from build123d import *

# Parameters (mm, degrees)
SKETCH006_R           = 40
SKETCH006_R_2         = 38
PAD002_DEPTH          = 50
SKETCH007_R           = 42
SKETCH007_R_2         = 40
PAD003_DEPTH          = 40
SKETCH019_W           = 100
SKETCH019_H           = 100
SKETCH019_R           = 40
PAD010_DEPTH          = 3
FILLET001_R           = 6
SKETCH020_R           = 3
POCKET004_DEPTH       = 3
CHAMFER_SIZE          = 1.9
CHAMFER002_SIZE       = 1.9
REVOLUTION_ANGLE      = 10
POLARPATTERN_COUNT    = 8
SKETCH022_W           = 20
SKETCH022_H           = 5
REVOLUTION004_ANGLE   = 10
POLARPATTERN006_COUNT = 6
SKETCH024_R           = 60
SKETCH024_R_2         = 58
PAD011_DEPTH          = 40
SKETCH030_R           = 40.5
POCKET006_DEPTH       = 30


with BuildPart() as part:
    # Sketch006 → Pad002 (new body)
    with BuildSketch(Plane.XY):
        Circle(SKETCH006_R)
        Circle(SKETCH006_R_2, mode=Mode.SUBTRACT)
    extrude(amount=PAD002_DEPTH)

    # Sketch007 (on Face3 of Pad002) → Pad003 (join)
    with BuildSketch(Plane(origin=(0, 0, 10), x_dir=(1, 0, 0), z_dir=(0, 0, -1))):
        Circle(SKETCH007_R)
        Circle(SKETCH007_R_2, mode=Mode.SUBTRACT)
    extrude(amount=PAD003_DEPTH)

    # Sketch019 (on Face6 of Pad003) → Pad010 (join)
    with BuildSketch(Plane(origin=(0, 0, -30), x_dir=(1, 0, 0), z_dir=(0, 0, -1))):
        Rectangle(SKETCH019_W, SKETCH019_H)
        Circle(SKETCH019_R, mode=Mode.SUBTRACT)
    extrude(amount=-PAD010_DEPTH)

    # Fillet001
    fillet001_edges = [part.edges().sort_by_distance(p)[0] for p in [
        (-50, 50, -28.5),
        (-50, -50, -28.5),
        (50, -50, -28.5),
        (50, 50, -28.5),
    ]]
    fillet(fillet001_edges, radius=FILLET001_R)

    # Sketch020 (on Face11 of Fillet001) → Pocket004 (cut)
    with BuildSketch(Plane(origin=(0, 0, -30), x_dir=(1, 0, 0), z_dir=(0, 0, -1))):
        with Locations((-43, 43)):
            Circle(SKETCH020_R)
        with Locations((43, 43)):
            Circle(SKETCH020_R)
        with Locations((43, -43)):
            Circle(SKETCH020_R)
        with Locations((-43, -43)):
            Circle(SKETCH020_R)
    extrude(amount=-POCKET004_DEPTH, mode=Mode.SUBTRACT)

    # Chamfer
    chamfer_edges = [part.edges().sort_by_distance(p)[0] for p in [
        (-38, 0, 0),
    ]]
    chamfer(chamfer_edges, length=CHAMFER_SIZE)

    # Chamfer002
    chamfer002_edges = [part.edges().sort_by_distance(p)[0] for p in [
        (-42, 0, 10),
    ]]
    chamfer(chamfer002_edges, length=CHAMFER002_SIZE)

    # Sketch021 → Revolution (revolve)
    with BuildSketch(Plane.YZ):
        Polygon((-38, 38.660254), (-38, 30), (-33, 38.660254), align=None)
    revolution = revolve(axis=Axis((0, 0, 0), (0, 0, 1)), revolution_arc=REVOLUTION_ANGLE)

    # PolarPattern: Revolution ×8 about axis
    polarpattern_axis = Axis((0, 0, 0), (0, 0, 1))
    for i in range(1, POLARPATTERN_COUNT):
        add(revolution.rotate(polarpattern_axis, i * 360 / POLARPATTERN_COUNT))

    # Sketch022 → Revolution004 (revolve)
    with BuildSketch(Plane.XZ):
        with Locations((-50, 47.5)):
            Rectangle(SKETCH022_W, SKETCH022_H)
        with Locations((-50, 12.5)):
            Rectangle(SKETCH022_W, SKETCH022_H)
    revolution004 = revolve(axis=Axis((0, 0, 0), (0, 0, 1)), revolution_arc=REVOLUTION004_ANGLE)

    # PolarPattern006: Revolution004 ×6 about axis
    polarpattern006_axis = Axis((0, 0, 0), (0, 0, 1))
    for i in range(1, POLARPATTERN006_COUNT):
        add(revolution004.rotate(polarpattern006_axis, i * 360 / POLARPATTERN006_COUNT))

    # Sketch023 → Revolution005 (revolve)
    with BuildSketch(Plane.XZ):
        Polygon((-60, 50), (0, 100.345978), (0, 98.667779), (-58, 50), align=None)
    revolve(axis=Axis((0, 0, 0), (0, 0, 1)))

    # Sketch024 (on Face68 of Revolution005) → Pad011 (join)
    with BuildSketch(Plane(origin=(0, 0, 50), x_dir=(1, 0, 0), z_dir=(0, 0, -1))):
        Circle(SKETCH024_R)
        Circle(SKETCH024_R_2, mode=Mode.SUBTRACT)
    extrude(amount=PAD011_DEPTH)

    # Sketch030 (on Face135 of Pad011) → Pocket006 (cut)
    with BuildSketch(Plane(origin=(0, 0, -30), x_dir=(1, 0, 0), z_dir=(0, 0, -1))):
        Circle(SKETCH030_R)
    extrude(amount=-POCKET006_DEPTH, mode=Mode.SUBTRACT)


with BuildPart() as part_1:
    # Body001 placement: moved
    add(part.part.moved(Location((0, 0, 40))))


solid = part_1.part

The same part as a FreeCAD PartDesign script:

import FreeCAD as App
import Part
import Sketcher
from FreeCAD import Vector
Q = App.Units.Quantity


def edges_at(feature, points):
    """Names of the edges that pass closest to the given points."""
    edges = feature.Shape.Edges
    near = lambda p: min(range(len(edges)), key=lambda i: edges[i].distToShape(Part.Vertex(*p))[0])
    return sorted({f"Edge{near(p) + 1}" for p in points})


def add_polygon(sketch, points):
    """Adds a closed chain of lines whose ends are joined by coincident constraints."""
    first, n = sketch.GeometryCount, len(points)
    for a, b in zip(points, points[1:] + points[:1]):
        sketch.addGeometry(Part.LineSegment(App.Vector(*a, 0), App.Vector(*b, 0)), False)
    for i in range(n):
        sketch.addConstraint(Sketcher.Constraint("Coincident", first + i, 2, first + (i + 1) % n, 1))

doc = App.newDocument("Part")
params = doc.addObject("Spreadsheet::Sheet", "Params")
for row, (alias, value) in enumerate([
    ("sketch1_diameter", "80 mm"),
    ("sketch1_diameter2", "76 mm"),
    ("pad1_length", "50 mm"),
    ("sketch2_diameter", "84 mm"),
    ("sketch2_diameter2", "80 mm"),
    ("pad2_length", "40 mm"),
    ("sketch3_diameter", "80 mm"),
    ("sketch3_width", "100 mm"),
    ("pad3_length", "3 mm"),
    ("fillet_radius", "6 mm"),
    ("sketch4_diameter", "6 mm"),
    ("pocket1_length", "3 mm"),
    ("chamfer_size", "1.9 mm"),
    ("chamfer2_size", "1.9 mm"),
    ("sketch5_width", "5 mm"),
    ("revolution_angle", "10 deg"),
    ("sketch6_width", "20 mm"),
    ("sketch6_height", "5 mm"),
    ("revolution2_angle", "10 deg"),
    ("sketch7_width", "2 mm"),
    ("revolution3_angle", "360 deg"),
    ("sketch8_diameter", "120 mm"),
    ("sketch8_diameter2", "116 mm"),
    ("pad4_length", "40 mm"),
    ("sketch9_diameter", "81 mm"),
    ("pocket2_length", "30 mm"),
], start=1):
    params.set(f"A{row}", alias)
    params.set(f"B{row}", "=" + value)
    params.setAlias(f"B{row}", alias)

body = doc.addObject("PartDesign::Body", "Body")

# Sketch on XY plane
sketch1 = doc.addObject("Sketcher::SketchObject", "Sketch")
body.addObject(sketch1)
sketch1.AttachmentSupport = (doc.XY_Plane, [""])
sketch1.MapMode = "FlatFace"
sketch1.addGeometry(Part.Circle(Vector(0, 0, 0), Vector(0, 0, 1), 40), False)
sketch1.addGeometry(Part.Circle(Vector(0, 0, 0), Vector(0, 0, 1), 38), False)
sketch1.addConstraint(Sketcher.Constraint("Coincident", 0, 3, -1, 1))
sketch1.addConstraint(Sketcher.Constraint("Coincident", 1, 3, -1, 1))
sketch1.addConstraint(Sketcher.Constraint("Diameter", 0, Q("80 mm")))
sketch1.addConstraint(Sketcher.Constraint("Diameter", 1, Q("76 mm")))
sketch1.setExpression("Constraints[2]", "Params.sketch1_diameter")
sketch1.setExpression("Constraints[3]", "Params.sketch1_diameter2")
pad1 = doc.addObject("PartDesign::Pad", "Pad")
body.addObject(pad1)
pad1.Profile = sketch1
pad1.setExpression("Length", "Params.pad1_length")

# Sketch on XY plane
sketch2 = doc.addObject("Sketcher::SketchObject", "Sketch001")
body.addObject(sketch2)
sketch2.AttachmentSupport = (doc.XY_Plane, [""])
sketch2.MapMode = "FlatFace"
sketch2.AttachmentOffset = App.Placement(Vector(0, 0, 10), App.Rotation())
sketch2.addGeometry(Part.Circle(Vector(0, 0, 0), Vector(0, 0, 1), 42), False)
sketch2.addGeometry(Part.Circle(Vector(0, 0, 0), Vector(0, 0, 1), 40), False)
sketch2.addConstraint(Sketcher.Constraint("Coincident", 0, 3, -1, 1))
sketch2.addConstraint(Sketcher.Constraint("Coincident", 1, 3, -1, 1))
sketch2.addConstraint(Sketcher.Constraint("Diameter", 0, Q("84 mm")))
sketch2.addConstraint(Sketcher.Constraint("Diameter", 1, Q("80 mm")))
sketch2.setExpression("Constraints[2]", "Params.sketch2_diameter")
sketch2.setExpression("Constraints[3]", "Params.sketch2_diameter2")
pad2 = doc.addObject("PartDesign::Pad", "Pad001")
body.addObject(pad2)
pad2.Profile = sketch2
pad2.setExpression("Length", "Params.pad2_length")
pad2.Reversed = True

# Sketch on XY plane
sketch3 = doc.addObject("Sketcher::SketchObject", "Sketch002")
body.addObject(sketch3)
sketch3.AttachmentSupport = (doc.XY_Plane, [""])
sketch3.MapMode = "FlatFace"
sketch3.AttachmentOffset = App.Placement(Vector(0, 0, -30), App.Rotation())
add_polygon(sketch3, [(-50, -50), (-50, 50), (50, 50), (50, -50)])  # lines 0-3
sketch3.addGeometry(Part.Circle(Vector(0, 0, 0), Vector(0, 0, 1), 40), False)  # 4
sketch3.addConstraint(Sketcher.Constraint("Vertical", 0))
sketch3.addConstraint(Sketcher.Constraint("Horizontal", 1))
sketch3.addConstraint(Sketcher.Constraint("Vertical", 2))
sketch3.addConstraint(Sketcher.Constraint("Horizontal", 3))
sketch3.addConstraint(Sketcher.Constraint("Coincident", 4, 3, -1, 1))
sketch3.addConstraint(Sketcher.Constraint("Symmetric", 0, 2, 2, 2, -1, 1))
sketch3.addConstraint(Sketcher.Constraint("Equal", 3, 0))
sketch3.addConstraint(Sketcher.Constraint("Diameter", 4, Q("80 mm")))
sketch3.addConstraint(Sketcher.Constraint("DistanceX", 1, 1, 1, 2, Q("100 mm")))
sketch3.setExpression("Constraints[11]", "Params.sketch3_diameter")
sketch3.setExpression("Constraints[12]", "Params.sketch3_width")
pad3 = doc.addObject("PartDesign::Pad", "Pad002")
body.addObject(pad3)
pad3.Profile = sketch3
pad3.setExpression("Length", "Params.pad3_length")
doc.recompute()

fillet = doc.addObject("PartDesign::Fillet", "Fillet")
body.addObject(fillet)
fillet.Base = (pad3, edges_at(pad3, [
    (-50, 50, -28.5),
    (-50, -50, -28.5),
    (50, -50, -28.5),
    (50, 50, -28.5),
]))
fillet.setExpression("Radius", "Params.fillet_radius")

# Sketch on XY plane
sketch4 = doc.addObject("Sketcher::SketchObject", "Sketch003")
body.addObject(sketch4)
sketch4.AttachmentSupport = (doc.XY_Plane, [""])
sketch4.MapMode = "FlatFace"
sketch4.AttachmentOffset = App.Placement(Vector(0, 0, -30), App.Rotation())
sketch4.addGeometry(Part.Circle(Vector(-43, -43, 0), Vector(0, 0, 1), 3), False)
sketch4.addGeometry(Part.Circle(Vector(43, -43, 0), Vector(0, 0, 1), 3), False)
sketch4.addGeometry(Part.Circle(Vector(43, 43, 0), Vector(0, 0, 1), 3), False)
sketch4.addGeometry(Part.Circle(Vector(-43, 43, 0), Vector(0, 0, 1), 3), False)
sketch4.addConstraint(Sketcher.Constraint("Equal", 0, 1))
sketch4.addConstraint(Sketcher.Constraint("Equal", 1, 2))
sketch4.addConstraint(Sketcher.Constraint("Equal", 2, 3))
sketch4.addConstraint(Sketcher.Constraint("Symmetric", 0, 3, 2, 3, -1, 1))
sketch4.addConstraint(Sketcher.Constraint("Symmetric", 1, 3, 3, 3, -1, 1))
sketch4.addConstraint(Sketcher.Constraint("Symmetric", 0, 3, 1, 3, -2))
sketch4.addConstraint(Sketcher.Constraint("Diameter", 0, Q("6 mm")))
sketch4.addConstraint(Sketcher.Constraint("DistanceX", 0, 3, -1, 1, Q("43 mm")))
sketch4.addConstraint(Sketcher.Constraint("DistanceY", 0, 3, -1, 1, Q("43 mm")))
sketch4.setExpression("Constraints[6]", "Params.sketch4_diameter")
pocket1 = doc.addObject("PartDesign::Pocket", "Pocket")
body.addObject(pocket1)
pocket1.Profile = sketch4
pocket1.setExpression("Length", "Params.pocket1_length")
pocket1.Reversed = True
doc.recompute()

chamfer = doc.addObject("PartDesign::Chamfer", "Chamfer")
body.addObject(chamfer)
chamfer.Base = (pocket1, edges_at(pocket1, [(-38, 0, 0)]))
chamfer.setExpression("Size", "Params.chamfer_size")
doc.recompute()

chamfer2 = doc.addObject("PartDesign::Chamfer", "Chamfer001")
body.addObject(chamfer2)
chamfer2.Base = (chamfer, edges_at(chamfer, [(-42, 0, 10)]))
chamfer2.setExpression("Size", "Params.chamfer2_size")

# Sketch on YZ plane
sketch5 = doc.addObject("Sketcher::SketchObject", "Sketch004")
body.addObject(sketch5)
sketch5.AttachmentSupport = (doc.YZ_Plane, [""])
sketch5.MapMode = "FlatFace"
add_polygon(sketch5, [(-38, 39), (-38, 30), (-33, 39)])  # lines 0-2
sketch5.addConstraint(Sketcher.Constraint("Vertical", 0))
sketch5.addConstraint(Sketcher.Constraint("Horizontal", 2))
sketch5.addConstraint(Sketcher.Constraint("DistanceX", 2, 2, 2, 1, Q("5 mm")))
sketch5.addConstraint(Sketcher.Constraint("Angle", 1, Q("60 deg")))
sketch5.addConstraint(Sketcher.Constraint("DistanceX", 0, 2, -1, 1, Q("38 mm")))
sketch5.addConstraint(Sketcher.Constraint("DistanceY", -1, 1, 0, 2, Q("30 mm")))
sketch5.setExpression("Constraints[5]", "Params.sketch5_width")
revolution = doc.addObject("PartDesign::Revolution", "Revolution")
body.addObject(revolution)
revolution.Profile = sketch5
revolution.ReferenceAxis = (sketch5, ["V_Axis"])
revolution.setExpression("Angle", "Params.revolution_angle")
doc.recompute()

polarpattern = doc.addObject("PartDesign::PolarPattern", "PolarPattern")
body.addObject(polarpattern)
polarpattern.Originals = [revolution]
polarpattern.Axis = (doc.Z_Axis, [""])
polarpattern.Angle = 360
polarpattern.Occurrences = 8
body.Tip = polarpattern

# Sketch on XZ plane
sketch6 = doc.addObject("Sketcher::SketchObject", "Sketch005")
body.addObject(sketch6)
sketch6.AttachmentSupport = (doc.XZ_Plane, [""])
sketch6.MapMode = "FlatFace"
add_polygon(sketch6, [(-60, 50), (-60, 45), (-40, 45), (-40, 50)])  # lines 0-3
add_polygon(sketch6, [(-60, 15), (-60, 10), (-40, 10), (-40, 15)])  # lines 4-7
sketch6.addConstraint(Sketcher.Constraint("Vertical", 0))
sketch6.addConstraint(Sketcher.Constraint("Horizontal", 1))
sketch6.addConstraint(Sketcher.Constraint("Vertical", 2))
sketch6.addConstraint(Sketcher.Constraint("Horizontal", 3))
sketch6.addConstraint(Sketcher.Constraint("Vertical", 4))
sketch6.addConstraint(Sketcher.Constraint("Horizontal", 5))
sketch6.addConstraint(Sketcher.Constraint("Vertical", 6))
sketch6.addConstraint(Sketcher.Constraint("Horizontal", 7))
sketch6.addConstraint(Sketcher.Constraint("Vertical", 3, 2, 4, 2))
sketch6.addConstraint(Sketcher.Constraint("Vertical", 2, 2, 5, 2))
sketch6.addConstraint(Sketcher.Constraint("Equal", 2, 4))
sketch6.addConstraint(Sketcher.Constraint("DistanceX", 1, 1, 1, 2, Q("20 mm")))
sketch6.addConstraint(Sketcher.Constraint("DistanceY", 0, 2, 0, 1, Q("5 mm")))
sketch6.addConstraint(Sketcher.Constraint("DistanceX", 0, 2, -1, 1, Q("60 mm")))
sketch6.addConstraint(Sketcher.Constraint("DistanceY", -1, 1, 0, 2, Q("45 mm")))
sketch6.addConstraint(Sketcher.Constraint("DistanceY", -1, 1, 4, 2, Q("10 mm")))
sketch6.setExpression("Constraints[19]", "Params.sketch6_width")
sketch6.setExpression("Constraints[20]", "Params.sketch6_height")
revolution2 = doc.addObject("PartDesign::Revolution", "Revolution001")
body.addObject(revolution2)
revolution2.Profile = sketch6
revolution2.ReferenceAxis = (sketch6, ["V_Axis"])
revolution2.setExpression("Angle", "Params.revolution2_angle")
doc.recompute()

polarpattern2 = doc.addObject("PartDesign::PolarPattern", "PolarPattern001")
body.addObject(polarpattern2)
polarpattern2.Originals = [revolution2]
polarpattern2.Axis = (doc.Z_Axis, [""])
polarpattern2.Angle = 360
polarpattern2.Occurrences = 6
body.Tip = polarpattern2

# Sketch on XZ plane
sketch7 = doc.addObject("Sketcher::SketchObject", "Sketch006")
body.addObject(sketch7)
sketch7.AttachmentSupport = (doc.XZ_Plane, [""])
sketch7.MapMode = "FlatFace"
add_polygon(sketch7, [(0, 100.3), (-60, 50), (-58, 50), (0, 98.7)])  # lines 0-3
sketch7.addConstraint(Sketcher.Constraint("Horizontal", 1))
sketch7.addConstraint(Sketcher.Constraint("Vertical", 3))
sketch7.addConstraint(Sketcher.Constraint("PointOnObject", 2, 2, -2))
sketch7.addConstraint(Sketcher.Constraint("Parallel", 0, 2))
sketch7.addConstraint(Sketcher.Constraint("DistanceX", 1, 1, 1, 2, Q("2 mm")))
sketch7.addConstraint(Sketcher.Constraint("Angle", 0, Q("-140 deg")))
sketch7.addConstraint(Sketcher.Constraint("DistanceX", 0, 2, -1, 1, Q("60 mm")))
sketch7.addConstraint(Sketcher.Constraint("DistanceY", -1, 1, 0, 2, Q("50 mm")))
sketch7.setExpression("Constraints[8]", "Params.sketch7_width")
revolution3 = doc.addObject("PartDesign::Revolution", "Revolution002")
body.addObject(revolution3)
revolution3.Profile = sketch7
revolution3.ReferenceAxis = (sketch7, ["V_Axis"])
revolution3.setExpression("Angle", "Params.revolution3_angle")

# Sketch on XY plane
sketch8 = doc.addObject("Sketcher::SketchObject", "Sketch007")
body.addObject(sketch8)
sketch8.AttachmentSupport = (doc.XY_Plane, [""])
sketch8.MapMode = "FlatFace"
sketch8.AttachmentOffset = App.Placement(Vector(0, 0, 50), App.Rotation())
sketch8.addGeometry(Part.Circle(Vector(0, 0, 0), Vector(0, 0, 1), 60), False)
sketch8.addGeometry(Part.Circle(Vector(0, 0, 0), Vector(0, 0, 1), 58), False)
sketch8.addConstraint(Sketcher.Constraint("Coincident", 0, 3, -1, 1))
sketch8.addConstraint(Sketcher.Constraint("Coincident", 1, 3, -1, 1))
sketch8.addConstraint(Sketcher.Constraint("Diameter", 0, Q("120 mm")))
sketch8.addConstraint(Sketcher.Constraint("Diameter", 1, Q("116 mm")))
sketch8.setExpression("Constraints[2]", "Params.sketch8_diameter")
sketch8.setExpression("Constraints[3]", "Params.sketch8_diameter2")
pad4 = doc.addObject("PartDesign::Pad", "Pad003")
body.addObject(pad4)
pad4.Profile = sketch8
pad4.setExpression("Length", "Params.pad4_length")
pad4.Reversed = True

# Sketch on XY plane
sketch9 = doc.addObject("Sketcher::SketchObject", "Sketch008")
body.addObject(sketch9)
sketch9.AttachmentSupport = (doc.XY_Plane, [""])
sketch9.MapMode = "FlatFace"
sketch9.AttachmentOffset = App.Placement(Vector(0, 0, -30), App.Rotation())
sketch9.addGeometry(Part.Circle(Vector(0, 0, 0), Vector(0, 0, 1), 40), False)
sketch9.addConstraint(Sketcher.Constraint("Coincident", 0, 3, -1, 1))
sketch9.addConstraint(Sketcher.Constraint("Diameter", 0, Q("81 mm")))
sketch9.setExpression("Constraints[1]", "Params.sketch9_diameter")
pocket2 = doc.addObject("PartDesign::Pocket", "Pocket001")
body.addObject(pocket2)
pocket2.Profile = sketch9
pocket2.setExpression("Length", "Params.pocket2_length")
pocket2.Reversed = True
body2 = doc.addObject("PartDesign::Body", "Body001")
doc.recompute()

body.Placement = App.Placement(Vector(0, 0, 40), App.Rotation(Vector(0, 0, 1), 0))
boolean = doc.addObject("PartDesign::Boolean", "Boolean")
body2.addObject(boolean)
boolean.Type = "Fuse"
boolean.addObjects([body])

doc.recompute()
